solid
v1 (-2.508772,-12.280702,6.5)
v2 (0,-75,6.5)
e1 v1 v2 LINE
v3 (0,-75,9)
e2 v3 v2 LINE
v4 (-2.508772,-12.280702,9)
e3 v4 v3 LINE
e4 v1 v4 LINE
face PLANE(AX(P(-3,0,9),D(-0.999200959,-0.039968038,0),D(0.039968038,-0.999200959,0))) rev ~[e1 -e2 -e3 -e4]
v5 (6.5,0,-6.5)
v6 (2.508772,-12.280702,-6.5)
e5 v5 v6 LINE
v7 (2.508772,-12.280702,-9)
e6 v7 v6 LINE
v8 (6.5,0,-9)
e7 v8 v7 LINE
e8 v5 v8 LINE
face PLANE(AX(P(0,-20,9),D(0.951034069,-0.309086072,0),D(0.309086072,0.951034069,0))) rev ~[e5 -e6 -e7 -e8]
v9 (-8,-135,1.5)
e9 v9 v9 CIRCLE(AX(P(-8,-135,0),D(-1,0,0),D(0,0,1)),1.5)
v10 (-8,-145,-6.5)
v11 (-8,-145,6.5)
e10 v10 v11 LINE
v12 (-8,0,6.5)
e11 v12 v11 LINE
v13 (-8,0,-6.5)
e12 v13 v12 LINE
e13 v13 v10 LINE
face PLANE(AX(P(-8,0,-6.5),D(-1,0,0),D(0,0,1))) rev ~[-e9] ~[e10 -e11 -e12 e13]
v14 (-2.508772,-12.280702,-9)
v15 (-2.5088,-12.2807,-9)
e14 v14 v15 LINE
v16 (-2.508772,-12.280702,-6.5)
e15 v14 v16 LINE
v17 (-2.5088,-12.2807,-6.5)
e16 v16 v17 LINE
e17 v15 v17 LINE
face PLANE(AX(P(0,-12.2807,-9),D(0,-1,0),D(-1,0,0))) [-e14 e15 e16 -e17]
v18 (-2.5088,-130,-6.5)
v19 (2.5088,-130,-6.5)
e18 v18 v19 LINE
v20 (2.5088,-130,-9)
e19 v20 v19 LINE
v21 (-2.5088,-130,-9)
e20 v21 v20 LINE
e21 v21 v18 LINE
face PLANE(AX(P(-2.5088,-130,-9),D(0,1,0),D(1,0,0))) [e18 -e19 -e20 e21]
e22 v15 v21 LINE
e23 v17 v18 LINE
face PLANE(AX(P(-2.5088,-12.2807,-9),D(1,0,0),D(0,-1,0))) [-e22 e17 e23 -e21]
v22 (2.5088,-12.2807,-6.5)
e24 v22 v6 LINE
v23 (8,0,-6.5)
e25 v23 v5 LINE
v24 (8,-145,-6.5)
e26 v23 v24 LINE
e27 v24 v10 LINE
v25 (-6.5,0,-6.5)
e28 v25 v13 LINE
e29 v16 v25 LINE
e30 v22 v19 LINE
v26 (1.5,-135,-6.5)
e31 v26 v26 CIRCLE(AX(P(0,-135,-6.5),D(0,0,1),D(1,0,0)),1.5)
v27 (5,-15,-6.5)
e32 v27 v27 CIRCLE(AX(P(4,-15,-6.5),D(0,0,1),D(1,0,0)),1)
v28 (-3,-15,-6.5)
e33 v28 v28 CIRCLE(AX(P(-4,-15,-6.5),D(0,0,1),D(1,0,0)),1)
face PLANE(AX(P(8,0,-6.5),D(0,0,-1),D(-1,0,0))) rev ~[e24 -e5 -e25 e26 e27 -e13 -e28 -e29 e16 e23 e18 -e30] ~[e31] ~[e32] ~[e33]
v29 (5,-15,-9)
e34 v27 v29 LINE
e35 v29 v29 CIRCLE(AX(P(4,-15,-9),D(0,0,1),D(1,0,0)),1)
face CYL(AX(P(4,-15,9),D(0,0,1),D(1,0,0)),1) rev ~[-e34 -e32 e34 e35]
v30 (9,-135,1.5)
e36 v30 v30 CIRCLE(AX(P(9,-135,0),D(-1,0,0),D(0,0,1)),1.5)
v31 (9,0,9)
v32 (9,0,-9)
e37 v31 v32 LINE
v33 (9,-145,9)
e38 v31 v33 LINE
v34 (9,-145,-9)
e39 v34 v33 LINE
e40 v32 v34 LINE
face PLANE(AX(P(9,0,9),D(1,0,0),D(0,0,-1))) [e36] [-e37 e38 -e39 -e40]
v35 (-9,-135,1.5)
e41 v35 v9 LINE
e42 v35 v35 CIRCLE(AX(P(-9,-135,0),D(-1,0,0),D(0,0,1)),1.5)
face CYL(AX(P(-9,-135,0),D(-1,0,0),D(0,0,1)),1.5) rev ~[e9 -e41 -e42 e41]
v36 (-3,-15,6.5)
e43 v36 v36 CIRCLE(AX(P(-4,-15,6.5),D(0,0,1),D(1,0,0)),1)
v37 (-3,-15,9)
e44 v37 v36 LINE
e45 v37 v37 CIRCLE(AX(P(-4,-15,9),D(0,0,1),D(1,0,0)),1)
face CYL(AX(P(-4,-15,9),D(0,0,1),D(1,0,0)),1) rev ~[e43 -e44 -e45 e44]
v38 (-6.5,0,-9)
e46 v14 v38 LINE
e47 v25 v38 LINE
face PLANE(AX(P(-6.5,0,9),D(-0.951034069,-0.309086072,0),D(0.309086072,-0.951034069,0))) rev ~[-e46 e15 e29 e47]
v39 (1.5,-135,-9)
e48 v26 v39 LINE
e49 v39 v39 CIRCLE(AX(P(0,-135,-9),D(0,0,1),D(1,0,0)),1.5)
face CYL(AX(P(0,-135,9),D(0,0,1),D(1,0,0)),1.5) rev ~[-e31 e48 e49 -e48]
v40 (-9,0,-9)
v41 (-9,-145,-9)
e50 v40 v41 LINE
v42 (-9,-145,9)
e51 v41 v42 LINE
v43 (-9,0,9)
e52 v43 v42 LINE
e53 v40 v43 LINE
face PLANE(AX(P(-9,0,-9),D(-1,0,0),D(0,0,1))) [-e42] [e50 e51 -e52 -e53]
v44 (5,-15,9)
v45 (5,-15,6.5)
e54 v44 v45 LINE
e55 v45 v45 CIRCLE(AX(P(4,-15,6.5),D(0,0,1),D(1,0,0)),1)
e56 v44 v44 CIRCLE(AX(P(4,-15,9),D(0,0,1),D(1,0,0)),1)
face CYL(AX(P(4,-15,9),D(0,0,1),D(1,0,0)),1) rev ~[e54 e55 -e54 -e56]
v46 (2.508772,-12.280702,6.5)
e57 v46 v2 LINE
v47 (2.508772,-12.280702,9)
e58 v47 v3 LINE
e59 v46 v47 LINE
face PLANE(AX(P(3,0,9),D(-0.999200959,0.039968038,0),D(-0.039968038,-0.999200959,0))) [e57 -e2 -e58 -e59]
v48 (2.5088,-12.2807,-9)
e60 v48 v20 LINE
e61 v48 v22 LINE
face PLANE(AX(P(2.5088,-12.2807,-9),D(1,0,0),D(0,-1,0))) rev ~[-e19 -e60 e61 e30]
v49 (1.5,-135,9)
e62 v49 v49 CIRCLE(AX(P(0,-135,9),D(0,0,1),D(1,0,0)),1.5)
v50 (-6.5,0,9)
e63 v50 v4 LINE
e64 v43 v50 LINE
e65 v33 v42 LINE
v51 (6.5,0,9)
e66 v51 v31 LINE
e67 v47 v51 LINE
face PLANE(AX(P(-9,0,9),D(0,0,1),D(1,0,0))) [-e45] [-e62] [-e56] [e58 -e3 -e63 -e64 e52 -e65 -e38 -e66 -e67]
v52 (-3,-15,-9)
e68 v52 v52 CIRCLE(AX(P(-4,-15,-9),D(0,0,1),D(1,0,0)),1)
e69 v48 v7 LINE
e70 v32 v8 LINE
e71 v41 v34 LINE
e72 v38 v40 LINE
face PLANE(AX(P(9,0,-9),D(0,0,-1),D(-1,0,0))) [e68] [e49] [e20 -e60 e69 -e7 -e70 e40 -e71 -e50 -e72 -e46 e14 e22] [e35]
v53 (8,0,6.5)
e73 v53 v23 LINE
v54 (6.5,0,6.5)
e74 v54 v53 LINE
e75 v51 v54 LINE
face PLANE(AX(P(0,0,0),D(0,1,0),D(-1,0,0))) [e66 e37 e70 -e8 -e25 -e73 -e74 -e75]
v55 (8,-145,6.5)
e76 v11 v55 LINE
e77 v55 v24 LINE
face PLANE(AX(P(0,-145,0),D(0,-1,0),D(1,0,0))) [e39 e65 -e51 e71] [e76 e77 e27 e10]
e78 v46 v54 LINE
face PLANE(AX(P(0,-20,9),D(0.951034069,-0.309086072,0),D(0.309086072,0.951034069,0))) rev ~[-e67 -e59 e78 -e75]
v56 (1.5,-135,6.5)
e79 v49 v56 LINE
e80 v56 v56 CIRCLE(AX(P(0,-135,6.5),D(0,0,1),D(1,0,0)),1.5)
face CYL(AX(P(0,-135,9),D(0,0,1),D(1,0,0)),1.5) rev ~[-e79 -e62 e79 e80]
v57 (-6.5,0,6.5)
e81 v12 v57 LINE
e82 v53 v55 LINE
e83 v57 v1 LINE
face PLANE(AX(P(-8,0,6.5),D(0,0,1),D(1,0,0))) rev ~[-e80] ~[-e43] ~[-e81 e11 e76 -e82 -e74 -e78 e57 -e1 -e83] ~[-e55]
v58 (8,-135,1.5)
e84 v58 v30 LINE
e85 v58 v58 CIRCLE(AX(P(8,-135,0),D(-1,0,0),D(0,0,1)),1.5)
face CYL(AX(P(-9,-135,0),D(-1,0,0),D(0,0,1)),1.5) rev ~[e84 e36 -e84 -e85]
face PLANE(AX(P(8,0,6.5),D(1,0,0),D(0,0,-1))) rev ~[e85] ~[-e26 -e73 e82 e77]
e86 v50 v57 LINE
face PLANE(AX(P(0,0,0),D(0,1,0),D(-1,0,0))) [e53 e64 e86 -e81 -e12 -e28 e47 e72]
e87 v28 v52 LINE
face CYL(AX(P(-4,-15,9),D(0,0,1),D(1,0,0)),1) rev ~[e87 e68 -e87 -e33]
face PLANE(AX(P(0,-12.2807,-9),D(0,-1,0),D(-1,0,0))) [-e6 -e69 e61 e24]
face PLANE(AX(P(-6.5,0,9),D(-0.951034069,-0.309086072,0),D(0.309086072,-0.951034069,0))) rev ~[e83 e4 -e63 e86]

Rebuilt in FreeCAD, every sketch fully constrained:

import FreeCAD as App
import Part
import Sketcher
Q = App.Units.Quantity


def add_polygon(sketch, points):
    """Adds a closed chain of lines whose ends are joined by coincident constraints."""
    first, n = sketch.GeometryCount, len(points)
    for a, b in zip(points, points[1:] + points[:1]):
        sketch.addGeometry(Part.LineSegment(App.Vector(*a, 0), App.Vector(*b, 0)), False)
    for i in range(n):
        sketch.addConstraint(Sketcher.Constraint("Coincident", first + i, 2, first + (i + 1) % n, 1))

doc = App.newDocument("Part")
body = doc.addObject("PartDesign::Body", "Body")

# Sketch on XZ plane
sketch1 = body.newObject("Sketcher::SketchObject", "Sketch")
sketch1.AttachmentSupport = (doc.getObject("XZ_Plane"), [""])
sketch1.MapMode = "FlatFace"
add_polygon(sketch1, [(-9, -9), (-9, 9), (9, 9), (9, -9)])  # lines 0-3
sketch1.addConstraint([
    Sketcher.Constraint("Vertical", 0),
    Sketcher.Constraint("Horizontal", 1),
    Sketcher.Constraint("Vertical", 2),
    Sketcher.Constraint("Horizontal", 3),
    Sketcher.Constraint("Symmetric", 0, 2, 2, 2, -1, 1),
    Sketcher.Constraint("Equal", 3, 0),
    Sketcher.Constraint("DistanceX", 1, 1, 1, 2, Q("18 mm")),
])
pad1 = body.newObject("PartDesign::Pad", "Pad")
pad1.Profile = sketch1
pad1.Length = 150

# Sketch on XZ plane
sketch2 = body.newObject("Sketcher::SketchObject", "Sketch001")
sketch2.AttachmentSupport = (doc.getObject("XZ_Plane"), [""])
sketch2.MapMode = "FlatFace"
add_polygon(sketch2, [(-8, -6.5), (-8, 6.5), (8, 6.5), (8, -6.5)])  # lines 0-3
sketch2.addConstraint([
    Sketcher.Constraint("Vertical", 0),
    Sketcher.Constraint("Horizontal", 1),
    Sketcher.Constraint("Vertical", 2),
    Sketcher.Constraint("Horizontal", 3),
    Sketcher.Constraint("Symmetric", 0, 2, 2, 2, -1, 1),
    Sketcher.Constraint("DistanceX", 1, 1, 1, 2, Q("16 mm")),
    Sketcher.Constraint("DistanceY", 0, 1, 0, 2, Q("13 mm")),
])
pocket1 = body.newObject("PartDesign::Pocket", "Pocket")
pocket1.Profile = sketch2
pocket1.Length = 150
pocket1.Reversed = True

# Sketch on XY plane
sketch3 = body.newObject("Sketcher::SketchObject", "Sketch002")
sketch3.AttachmentSupport = (doc.getObject("XY_Plane"), [""])
sketch3.MapMode = "FlatFace"
sketch3.AttachmentOffset = App.Placement(App.Vector(0, 0, 9), App.Rotation())
sketch3.addGeometry([
    Part.Circle(App.Vector(-4, -15, 0), App.Vector(0, 0, 1), 1),
    Part.Circle(App.Vector(4, -15, 0), App.Vector(0, 0, 1), 1),
], False)
sketch3.addConstraint([
    Sketcher.Constraint("Equal", 0, 1),
    Sketcher.Constraint("Symmetric", 0, 3, 1, 3, -2),
    Sketcher.Constraint("Diameter", 0, Q("2 mm")),
    Sketcher.Constraint("DistanceX", 0, 3, -1, 1, Q("4 mm")),
    Sketcher.Constraint("DistanceY", 0, 3, -1, 1, Q("15 mm")),
])
pocket2 = body.newObject("PartDesign::Pocket", "Pocket001")
pocket2.Profile = sketch3
pocket2.Length = 150

# Sketch on XY plane
sketch4 = body.newObject("Sketcher::SketchObject", "Sketch003")
sketch4.AttachmentSupport = (doc.getObject("XY_Plane"), [""])
sketch4.MapMode = "FlatFace"
sketch4.AttachmentOffset = App.Placement(App.Vector(0, 0, 9), App.Rotation())
sketch4.addGeometry(Part.Circle(App.Vector(0, -135, 0), App.Vector(0, 0, 1), 1.5), False)
sketch4.addConstraint([
    Sketcher.Constraint("PointOnObject", 0, 3, -2),
    Sketcher.Constraint("Diameter", 0, Q("3 mm")),
    Sketcher.Constraint("DistanceY", 0, 3, -1, 1, Q("135 mm")),
])
pocket3 = body.newObject("PartDesign::Pocket", "Pocket002")
pocket3.Profile = sketch4
pocket3.Length = 150

# Sketch on YZ plane
sketch5 = body.newObject("Sketcher::SketchObject", "Sketch004")
sketch5.AttachmentSupport = (doc.getObject("YZ_Plane"), [""])
sketch5.MapMode = "FlatFace"
sketch5.AttachmentOffset = App.Placement(App.Vector(0, 0, -9), App.Rotation())
sketch5.addGeometry(Part.Circle(App.Vector(-135, 0, 0), App.Vector(0, 0, 1), 1.5), False)
sketch5.addConstraint([
    Sketcher.Constraint("PointOnObject", 0, 3, -1),
    Sketcher.Constraint("Diameter", 0, Q("3 mm")),
    Sketcher.Constraint("DistanceX", 0, 3, -1, 1, Q("135 mm")),
])
pocket4 = body.newObject("PartDesign::Pocket", "Pocket003")
pocket4.Profile = sketch5
pocket4.Length = 150
pocket4.Reversed = True

# Sketch on XY plane
sketch6 = body.newObject("Sketcher::SketchObject", "Sketch005")
sketch6.AttachmentSupport = (doc.getObject("XY_Plane"), [""])
sketch6.MapMode = "FlatFace"
sketch6.AttachmentOffset = App.Placement(App.Vector(0, 0, 9), App.Rotation())
add_polygon(sketch6, [(3, 0), (-3, 0), (0, -75)])  # lines 0-2
sketch6.addConstraint([
    Sketcher.Constraint("Horizontal", 0),
    Sketcher.Constraint("Symmetric", 0, 2, 2, 2, -1, 1),
    Sketcher.Constraint("PointOnObject", 1, 2, -2),
    Sketcher.Constraint("DistanceX", 0, 2, -1, 1, Q("3 mm")),
    Sketcher.Constraint("DistanceY", 1, 2, -1, 1, Q("75 mm")),
])
pocket5 = body.newObject("PartDesign::Pocket", "Pocket004")
pocket5.Profile = sketch6
pocket5.Length = 30

# Sketch on XY plane
sketch7 = body.newObject("Sketcher::SketchObject", "Sketch006")
sketch7.AttachmentSupport = (doc.getObject("XY_Plane"), [""])
sketch7.MapMode = "FlatFace"
sketch7.AttachmentOffset = App.Placement(App.Vector(0, 0, 9), App.Rotation())
add_polygon(sketch7, [(-6.5, 0), (0, -20), (6.5, 0)])  # lines 0-2
sketch7.addConstraint([
    Sketcher.Constraint("Horizontal", 2),
    Sketcher.Constraint("Symmetric", 1, 2, 2, 2, -1, 1),
    Sketcher.Constraint("PointOnObject", 0, 2, -2),
    Sketcher.Constraint("DistanceY", 0, 2, -1, 1, Q("20 mm")),
    Sketcher.Constraint("DistanceX", -1, 1, 1, 2, Q("6.5 mm")),
])
pocket6 = body.newObject("PartDesign::Pocket", "Pocket005")
pocket6.Profile = sketch7
pocket6.Length = 30

# Sketch on XY plane
sketch8 = body.newObject("Sketcher::SketchObject", "Sketch007")
sketch8.AttachmentSupport = (doc.getObject("XY_Plane"), [""])
sketch8.MapMode = "FlatFace"
sketch8.AttachmentOffset = App.Placement(App.Vector(0, 0, -9), App.Rotation())
add_polygon(sketch8, [(-2.5088, -130), (-2.5088, -12.2807), (2.5088, -12.2807), (2.5088, -130)])  # lines 0-3
sketch8.addConstraint([
    Sketcher.Constraint("Vertical", 0),
    Sketcher.Constraint("Horizontal", 1),
    Sketcher.Constraint("Vertical", 2),
    Sketcher.Constraint("Horizontal", 3),
    Sketcher.Constraint("DistanceY", 2, 2, -1, 1, Q("130 mm")),
    Sketcher.Constraint("DistanceX", 1, 1, 1, 2, Q("5.0176 mm")),
    Sketcher.Constraint("DistanceY", 0, 1, 0, 2, Q("117.7193 mm")),
    Sketcher.Constraint("DistanceX", 0, 2, -1, 1, Q("2.5088 mm")),
])
pocket7 = body.newObject("PartDesign::Pocket", "Pocket006")
pocket7.Profile = sketch8
pocket7.Length = 10
pocket7.Reversed = True

# Sketch on XZ plane
sketch9 = body.newObject("Sketcher::SketchObject", "Sketch008")
sketch9.AttachmentSupport = (doc.getObject("XZ_Plane"), [""])
sketch9.MapMode = "FlatFace"
sketch9.AttachmentOffset = App.Placement(App.Vector(0, 0, 150), App.Rotation())
add_polygon(sketch9, [(-9, 9), (-9, -9), (9, -9), (9, 9)])  # lines 0-3
sketch9.addConstraint([
    Sketcher.Constraint("Vertical", 0),
    Sketcher.Constraint("Horizontal", 1),
    Sketcher.Constraint("Vertical", 2),
    Sketcher.Constraint("Horizontal", 3),
    Sketcher.Constraint("Symmetric", 0, 2, 2, 2, -1, 1),
    Sketcher.Constraint("Equal", 3, 0),
    Sketcher.Constraint("DistanceX", 1, 1, 1, 2, Q("18 mm")),
])
pocket8 = body.newObject("PartDesign::Pocket", "Pocket007")
pocket8.Profile = sketch9
pocket8.Length = 5

doc.recompute()
